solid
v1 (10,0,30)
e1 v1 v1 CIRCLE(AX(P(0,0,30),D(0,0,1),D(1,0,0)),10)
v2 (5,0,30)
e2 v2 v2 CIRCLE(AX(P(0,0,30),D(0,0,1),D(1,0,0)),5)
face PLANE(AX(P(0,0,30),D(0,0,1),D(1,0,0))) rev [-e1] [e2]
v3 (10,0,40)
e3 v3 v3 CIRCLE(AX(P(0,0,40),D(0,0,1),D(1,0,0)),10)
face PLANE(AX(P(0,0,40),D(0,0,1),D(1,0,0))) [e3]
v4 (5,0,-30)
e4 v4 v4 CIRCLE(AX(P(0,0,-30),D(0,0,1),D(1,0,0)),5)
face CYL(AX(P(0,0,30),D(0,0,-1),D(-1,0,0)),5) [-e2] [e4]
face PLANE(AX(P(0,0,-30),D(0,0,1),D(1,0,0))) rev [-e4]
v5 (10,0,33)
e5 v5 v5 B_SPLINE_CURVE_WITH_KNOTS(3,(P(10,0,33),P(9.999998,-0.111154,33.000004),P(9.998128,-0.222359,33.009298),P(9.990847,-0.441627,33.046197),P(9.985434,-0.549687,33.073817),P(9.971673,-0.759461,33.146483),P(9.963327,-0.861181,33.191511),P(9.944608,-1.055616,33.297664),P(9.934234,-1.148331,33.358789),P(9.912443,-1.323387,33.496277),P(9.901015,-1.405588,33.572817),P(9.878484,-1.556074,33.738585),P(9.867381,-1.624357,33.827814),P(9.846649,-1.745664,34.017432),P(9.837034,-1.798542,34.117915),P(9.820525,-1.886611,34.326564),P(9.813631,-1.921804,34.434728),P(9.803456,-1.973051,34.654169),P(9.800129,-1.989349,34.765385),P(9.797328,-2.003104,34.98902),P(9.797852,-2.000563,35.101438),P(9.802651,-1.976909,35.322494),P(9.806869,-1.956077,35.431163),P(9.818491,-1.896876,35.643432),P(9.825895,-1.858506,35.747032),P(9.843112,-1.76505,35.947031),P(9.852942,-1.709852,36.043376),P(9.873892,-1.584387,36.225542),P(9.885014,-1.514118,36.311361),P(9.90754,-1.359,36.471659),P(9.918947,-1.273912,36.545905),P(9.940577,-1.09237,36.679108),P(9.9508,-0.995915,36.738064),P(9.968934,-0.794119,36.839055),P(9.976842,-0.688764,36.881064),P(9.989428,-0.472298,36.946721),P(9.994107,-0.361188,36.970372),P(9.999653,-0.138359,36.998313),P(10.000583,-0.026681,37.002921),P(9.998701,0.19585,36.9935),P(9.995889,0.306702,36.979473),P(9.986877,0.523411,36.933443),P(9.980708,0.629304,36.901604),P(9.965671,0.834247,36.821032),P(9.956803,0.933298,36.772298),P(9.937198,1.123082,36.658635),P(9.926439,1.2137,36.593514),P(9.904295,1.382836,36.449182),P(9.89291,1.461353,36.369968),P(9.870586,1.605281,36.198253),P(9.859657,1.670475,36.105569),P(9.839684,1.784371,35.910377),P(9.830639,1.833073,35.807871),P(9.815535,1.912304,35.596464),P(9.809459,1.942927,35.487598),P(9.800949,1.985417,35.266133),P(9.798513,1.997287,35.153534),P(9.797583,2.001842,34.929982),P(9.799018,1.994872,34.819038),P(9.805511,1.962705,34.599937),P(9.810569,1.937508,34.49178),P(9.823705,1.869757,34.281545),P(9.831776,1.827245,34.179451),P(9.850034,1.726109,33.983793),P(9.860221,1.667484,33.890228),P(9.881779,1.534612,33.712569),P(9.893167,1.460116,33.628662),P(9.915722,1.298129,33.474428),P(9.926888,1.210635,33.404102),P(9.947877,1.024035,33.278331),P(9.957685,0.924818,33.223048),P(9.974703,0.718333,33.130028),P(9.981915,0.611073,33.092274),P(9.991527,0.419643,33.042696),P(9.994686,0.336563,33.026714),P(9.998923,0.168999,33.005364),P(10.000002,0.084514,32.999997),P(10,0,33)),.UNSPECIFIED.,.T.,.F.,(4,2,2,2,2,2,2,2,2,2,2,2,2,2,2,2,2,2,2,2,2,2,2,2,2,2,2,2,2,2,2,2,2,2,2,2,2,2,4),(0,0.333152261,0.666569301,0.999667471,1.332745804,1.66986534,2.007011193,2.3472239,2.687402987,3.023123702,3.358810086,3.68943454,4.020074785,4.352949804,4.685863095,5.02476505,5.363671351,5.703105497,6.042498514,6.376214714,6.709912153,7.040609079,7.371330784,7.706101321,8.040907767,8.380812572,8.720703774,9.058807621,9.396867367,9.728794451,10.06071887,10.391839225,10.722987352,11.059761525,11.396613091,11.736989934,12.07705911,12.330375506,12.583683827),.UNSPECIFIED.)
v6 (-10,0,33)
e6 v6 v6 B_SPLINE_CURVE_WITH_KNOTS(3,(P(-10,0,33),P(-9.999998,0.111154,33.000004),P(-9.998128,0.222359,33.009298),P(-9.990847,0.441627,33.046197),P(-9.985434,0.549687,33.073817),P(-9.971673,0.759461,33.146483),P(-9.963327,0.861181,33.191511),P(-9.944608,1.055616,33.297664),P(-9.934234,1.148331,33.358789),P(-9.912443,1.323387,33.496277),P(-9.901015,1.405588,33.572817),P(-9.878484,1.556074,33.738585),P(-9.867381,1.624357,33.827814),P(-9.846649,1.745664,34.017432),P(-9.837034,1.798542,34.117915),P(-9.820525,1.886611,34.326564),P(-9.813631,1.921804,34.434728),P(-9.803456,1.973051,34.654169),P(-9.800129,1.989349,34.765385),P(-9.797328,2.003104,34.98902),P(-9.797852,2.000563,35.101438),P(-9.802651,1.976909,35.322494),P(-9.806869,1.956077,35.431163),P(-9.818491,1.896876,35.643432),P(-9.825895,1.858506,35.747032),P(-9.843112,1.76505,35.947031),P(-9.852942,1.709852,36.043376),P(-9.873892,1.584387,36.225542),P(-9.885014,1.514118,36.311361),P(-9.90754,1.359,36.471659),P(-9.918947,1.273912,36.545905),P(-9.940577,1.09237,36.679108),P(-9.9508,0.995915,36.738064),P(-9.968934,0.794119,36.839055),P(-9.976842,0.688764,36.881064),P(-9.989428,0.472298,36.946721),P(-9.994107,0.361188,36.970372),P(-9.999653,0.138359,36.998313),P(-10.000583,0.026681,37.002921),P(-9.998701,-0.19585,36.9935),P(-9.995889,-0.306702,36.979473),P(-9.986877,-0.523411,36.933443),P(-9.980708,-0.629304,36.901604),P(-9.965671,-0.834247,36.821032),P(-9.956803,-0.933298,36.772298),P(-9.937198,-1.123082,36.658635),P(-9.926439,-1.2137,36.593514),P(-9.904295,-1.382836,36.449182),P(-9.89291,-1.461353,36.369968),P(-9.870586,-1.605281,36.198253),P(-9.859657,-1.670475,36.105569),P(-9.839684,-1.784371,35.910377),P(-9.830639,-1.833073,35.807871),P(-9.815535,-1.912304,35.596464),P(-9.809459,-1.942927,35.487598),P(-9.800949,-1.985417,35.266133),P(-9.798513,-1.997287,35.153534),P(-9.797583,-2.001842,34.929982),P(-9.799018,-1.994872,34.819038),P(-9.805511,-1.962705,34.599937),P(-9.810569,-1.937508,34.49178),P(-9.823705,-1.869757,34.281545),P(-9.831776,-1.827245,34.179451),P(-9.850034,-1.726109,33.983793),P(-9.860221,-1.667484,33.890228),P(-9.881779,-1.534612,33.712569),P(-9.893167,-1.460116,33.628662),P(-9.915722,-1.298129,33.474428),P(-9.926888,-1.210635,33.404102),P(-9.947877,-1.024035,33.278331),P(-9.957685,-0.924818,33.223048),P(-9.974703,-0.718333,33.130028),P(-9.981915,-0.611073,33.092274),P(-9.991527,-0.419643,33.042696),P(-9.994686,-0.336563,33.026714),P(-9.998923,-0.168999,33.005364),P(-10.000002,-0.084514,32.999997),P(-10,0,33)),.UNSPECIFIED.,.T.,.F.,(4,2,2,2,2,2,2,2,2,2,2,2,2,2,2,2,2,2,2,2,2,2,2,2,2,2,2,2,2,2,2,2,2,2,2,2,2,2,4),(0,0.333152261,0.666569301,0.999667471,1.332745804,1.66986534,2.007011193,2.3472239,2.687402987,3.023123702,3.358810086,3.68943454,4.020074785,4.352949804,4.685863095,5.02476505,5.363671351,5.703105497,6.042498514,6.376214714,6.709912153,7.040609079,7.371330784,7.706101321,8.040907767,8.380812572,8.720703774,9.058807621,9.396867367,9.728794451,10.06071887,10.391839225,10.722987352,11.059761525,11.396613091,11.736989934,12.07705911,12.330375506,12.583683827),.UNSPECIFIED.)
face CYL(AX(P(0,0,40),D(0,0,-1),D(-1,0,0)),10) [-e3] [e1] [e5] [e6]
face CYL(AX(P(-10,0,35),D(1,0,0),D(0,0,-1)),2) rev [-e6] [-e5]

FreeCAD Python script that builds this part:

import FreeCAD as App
import Part
import Sketcher

V = App.Vector

doc = App.newDocument("Part")
params = doc.addObject("Spreadsheet::Sheet", "Params")
for row, (alias, value) in enumerate([
    ("sketch1_diameter", "10 mm"),
    ("pad1_length", "60 mm"),
    ("sketch2_diameter", "20 mm"),
    ("pad2_length", "10 mm"),
    ("sketch3_diameter", "4 mm"),
], start=1):
    params.set(f"A{row}", alias)
    params.set(f"B{row}", "=" + value)
    params.setAlias(f"B{row}", alias)

body = doc.addObject("PartDesign::Body", "Body")

sketch1 = body.newObject("Sketcher::SketchObject", "Sketch")
sketch1.AttachmentSupport = (doc.getObject("XY_Plane"), [""])
sketch1.MapMode = "FlatFace"
sketch1.addGeometry(Part.Circle(V(0, 0, 0), V(0, 0, 1), 5), False)
sketch1.addConstraint(Sketcher.Constraint("Coincident", 0, 3, -1, 1))
sketch1.addConstraint(Sketcher.Constraint("Diameter", 0, 10.0))
sketch1.setExpression("Constraints[1]", "Params.sketch1_diameter")
pad1 = body.newObject("PartDesign::Pad", "Pad")
pad1.Profile = sketch1
pad1.setExpression("Length", "Params.pad1_length")
pad1.Midplane = True

sketch2 = body.newObject("Sketcher::SketchObject", "Sketch001")
sketch2.AttachmentSupport = (doc.getObject("XY_Plane"), [""])
sketch2.MapMode = "FlatFace"
sketch2.AttachmentOffset = App.Placement(V(0, 0, 30), App.Rotation())
sketch2.addGeometry(Part.Circle(V(0, 0, 0), V(0, 0, 1), 10), False)
sketch2.addConstraint(Sketcher.Constraint("Coincident", 0, 3, -1, 1))
sketch2.addConstraint(Sketcher.Constraint("Diameter", 0, 20.0))
sketch2.setExpression("Constraints[1]", "Params.sketch2_diameter")
pad2 = body.newObject("PartDesign::Pad", "Pad001")
pad2.Profile = sketch2
pad2.setExpression("Length", "Params.pad2_length")

sketch3 = body.newObject("Sketcher::SketchObject", "Sketch002")
sketch3.AttachmentSupport = (doc.getObject("YZ_Plane"), [""])
sketch3.MapMode = "FlatFace"
sketch3.addGeometry(Part.Circle(V(0, 35, 0), V(0, 0, 1), 2), False)
sketch3.addConstraint(Sketcher.Constraint("PointOnObject", 0, 3, -2))
sketch3.addConstraint(Sketcher.Constraint("Diameter", 0, 4.0))
sketch3.addConstraint(Sketcher.Constraint("DistanceY", -1, 1, 0, 3, 35.0))
sketch3.setExpression("Constraints[1]", "Params.sketch3_diameter")
pocket1 = body.newObject("PartDesign::Pocket", "Pocket")
pocket1.Profile = sketch3
pocket1.Type = "ThroughAll"
pocket1.Midplane = True

doc.recompute()
